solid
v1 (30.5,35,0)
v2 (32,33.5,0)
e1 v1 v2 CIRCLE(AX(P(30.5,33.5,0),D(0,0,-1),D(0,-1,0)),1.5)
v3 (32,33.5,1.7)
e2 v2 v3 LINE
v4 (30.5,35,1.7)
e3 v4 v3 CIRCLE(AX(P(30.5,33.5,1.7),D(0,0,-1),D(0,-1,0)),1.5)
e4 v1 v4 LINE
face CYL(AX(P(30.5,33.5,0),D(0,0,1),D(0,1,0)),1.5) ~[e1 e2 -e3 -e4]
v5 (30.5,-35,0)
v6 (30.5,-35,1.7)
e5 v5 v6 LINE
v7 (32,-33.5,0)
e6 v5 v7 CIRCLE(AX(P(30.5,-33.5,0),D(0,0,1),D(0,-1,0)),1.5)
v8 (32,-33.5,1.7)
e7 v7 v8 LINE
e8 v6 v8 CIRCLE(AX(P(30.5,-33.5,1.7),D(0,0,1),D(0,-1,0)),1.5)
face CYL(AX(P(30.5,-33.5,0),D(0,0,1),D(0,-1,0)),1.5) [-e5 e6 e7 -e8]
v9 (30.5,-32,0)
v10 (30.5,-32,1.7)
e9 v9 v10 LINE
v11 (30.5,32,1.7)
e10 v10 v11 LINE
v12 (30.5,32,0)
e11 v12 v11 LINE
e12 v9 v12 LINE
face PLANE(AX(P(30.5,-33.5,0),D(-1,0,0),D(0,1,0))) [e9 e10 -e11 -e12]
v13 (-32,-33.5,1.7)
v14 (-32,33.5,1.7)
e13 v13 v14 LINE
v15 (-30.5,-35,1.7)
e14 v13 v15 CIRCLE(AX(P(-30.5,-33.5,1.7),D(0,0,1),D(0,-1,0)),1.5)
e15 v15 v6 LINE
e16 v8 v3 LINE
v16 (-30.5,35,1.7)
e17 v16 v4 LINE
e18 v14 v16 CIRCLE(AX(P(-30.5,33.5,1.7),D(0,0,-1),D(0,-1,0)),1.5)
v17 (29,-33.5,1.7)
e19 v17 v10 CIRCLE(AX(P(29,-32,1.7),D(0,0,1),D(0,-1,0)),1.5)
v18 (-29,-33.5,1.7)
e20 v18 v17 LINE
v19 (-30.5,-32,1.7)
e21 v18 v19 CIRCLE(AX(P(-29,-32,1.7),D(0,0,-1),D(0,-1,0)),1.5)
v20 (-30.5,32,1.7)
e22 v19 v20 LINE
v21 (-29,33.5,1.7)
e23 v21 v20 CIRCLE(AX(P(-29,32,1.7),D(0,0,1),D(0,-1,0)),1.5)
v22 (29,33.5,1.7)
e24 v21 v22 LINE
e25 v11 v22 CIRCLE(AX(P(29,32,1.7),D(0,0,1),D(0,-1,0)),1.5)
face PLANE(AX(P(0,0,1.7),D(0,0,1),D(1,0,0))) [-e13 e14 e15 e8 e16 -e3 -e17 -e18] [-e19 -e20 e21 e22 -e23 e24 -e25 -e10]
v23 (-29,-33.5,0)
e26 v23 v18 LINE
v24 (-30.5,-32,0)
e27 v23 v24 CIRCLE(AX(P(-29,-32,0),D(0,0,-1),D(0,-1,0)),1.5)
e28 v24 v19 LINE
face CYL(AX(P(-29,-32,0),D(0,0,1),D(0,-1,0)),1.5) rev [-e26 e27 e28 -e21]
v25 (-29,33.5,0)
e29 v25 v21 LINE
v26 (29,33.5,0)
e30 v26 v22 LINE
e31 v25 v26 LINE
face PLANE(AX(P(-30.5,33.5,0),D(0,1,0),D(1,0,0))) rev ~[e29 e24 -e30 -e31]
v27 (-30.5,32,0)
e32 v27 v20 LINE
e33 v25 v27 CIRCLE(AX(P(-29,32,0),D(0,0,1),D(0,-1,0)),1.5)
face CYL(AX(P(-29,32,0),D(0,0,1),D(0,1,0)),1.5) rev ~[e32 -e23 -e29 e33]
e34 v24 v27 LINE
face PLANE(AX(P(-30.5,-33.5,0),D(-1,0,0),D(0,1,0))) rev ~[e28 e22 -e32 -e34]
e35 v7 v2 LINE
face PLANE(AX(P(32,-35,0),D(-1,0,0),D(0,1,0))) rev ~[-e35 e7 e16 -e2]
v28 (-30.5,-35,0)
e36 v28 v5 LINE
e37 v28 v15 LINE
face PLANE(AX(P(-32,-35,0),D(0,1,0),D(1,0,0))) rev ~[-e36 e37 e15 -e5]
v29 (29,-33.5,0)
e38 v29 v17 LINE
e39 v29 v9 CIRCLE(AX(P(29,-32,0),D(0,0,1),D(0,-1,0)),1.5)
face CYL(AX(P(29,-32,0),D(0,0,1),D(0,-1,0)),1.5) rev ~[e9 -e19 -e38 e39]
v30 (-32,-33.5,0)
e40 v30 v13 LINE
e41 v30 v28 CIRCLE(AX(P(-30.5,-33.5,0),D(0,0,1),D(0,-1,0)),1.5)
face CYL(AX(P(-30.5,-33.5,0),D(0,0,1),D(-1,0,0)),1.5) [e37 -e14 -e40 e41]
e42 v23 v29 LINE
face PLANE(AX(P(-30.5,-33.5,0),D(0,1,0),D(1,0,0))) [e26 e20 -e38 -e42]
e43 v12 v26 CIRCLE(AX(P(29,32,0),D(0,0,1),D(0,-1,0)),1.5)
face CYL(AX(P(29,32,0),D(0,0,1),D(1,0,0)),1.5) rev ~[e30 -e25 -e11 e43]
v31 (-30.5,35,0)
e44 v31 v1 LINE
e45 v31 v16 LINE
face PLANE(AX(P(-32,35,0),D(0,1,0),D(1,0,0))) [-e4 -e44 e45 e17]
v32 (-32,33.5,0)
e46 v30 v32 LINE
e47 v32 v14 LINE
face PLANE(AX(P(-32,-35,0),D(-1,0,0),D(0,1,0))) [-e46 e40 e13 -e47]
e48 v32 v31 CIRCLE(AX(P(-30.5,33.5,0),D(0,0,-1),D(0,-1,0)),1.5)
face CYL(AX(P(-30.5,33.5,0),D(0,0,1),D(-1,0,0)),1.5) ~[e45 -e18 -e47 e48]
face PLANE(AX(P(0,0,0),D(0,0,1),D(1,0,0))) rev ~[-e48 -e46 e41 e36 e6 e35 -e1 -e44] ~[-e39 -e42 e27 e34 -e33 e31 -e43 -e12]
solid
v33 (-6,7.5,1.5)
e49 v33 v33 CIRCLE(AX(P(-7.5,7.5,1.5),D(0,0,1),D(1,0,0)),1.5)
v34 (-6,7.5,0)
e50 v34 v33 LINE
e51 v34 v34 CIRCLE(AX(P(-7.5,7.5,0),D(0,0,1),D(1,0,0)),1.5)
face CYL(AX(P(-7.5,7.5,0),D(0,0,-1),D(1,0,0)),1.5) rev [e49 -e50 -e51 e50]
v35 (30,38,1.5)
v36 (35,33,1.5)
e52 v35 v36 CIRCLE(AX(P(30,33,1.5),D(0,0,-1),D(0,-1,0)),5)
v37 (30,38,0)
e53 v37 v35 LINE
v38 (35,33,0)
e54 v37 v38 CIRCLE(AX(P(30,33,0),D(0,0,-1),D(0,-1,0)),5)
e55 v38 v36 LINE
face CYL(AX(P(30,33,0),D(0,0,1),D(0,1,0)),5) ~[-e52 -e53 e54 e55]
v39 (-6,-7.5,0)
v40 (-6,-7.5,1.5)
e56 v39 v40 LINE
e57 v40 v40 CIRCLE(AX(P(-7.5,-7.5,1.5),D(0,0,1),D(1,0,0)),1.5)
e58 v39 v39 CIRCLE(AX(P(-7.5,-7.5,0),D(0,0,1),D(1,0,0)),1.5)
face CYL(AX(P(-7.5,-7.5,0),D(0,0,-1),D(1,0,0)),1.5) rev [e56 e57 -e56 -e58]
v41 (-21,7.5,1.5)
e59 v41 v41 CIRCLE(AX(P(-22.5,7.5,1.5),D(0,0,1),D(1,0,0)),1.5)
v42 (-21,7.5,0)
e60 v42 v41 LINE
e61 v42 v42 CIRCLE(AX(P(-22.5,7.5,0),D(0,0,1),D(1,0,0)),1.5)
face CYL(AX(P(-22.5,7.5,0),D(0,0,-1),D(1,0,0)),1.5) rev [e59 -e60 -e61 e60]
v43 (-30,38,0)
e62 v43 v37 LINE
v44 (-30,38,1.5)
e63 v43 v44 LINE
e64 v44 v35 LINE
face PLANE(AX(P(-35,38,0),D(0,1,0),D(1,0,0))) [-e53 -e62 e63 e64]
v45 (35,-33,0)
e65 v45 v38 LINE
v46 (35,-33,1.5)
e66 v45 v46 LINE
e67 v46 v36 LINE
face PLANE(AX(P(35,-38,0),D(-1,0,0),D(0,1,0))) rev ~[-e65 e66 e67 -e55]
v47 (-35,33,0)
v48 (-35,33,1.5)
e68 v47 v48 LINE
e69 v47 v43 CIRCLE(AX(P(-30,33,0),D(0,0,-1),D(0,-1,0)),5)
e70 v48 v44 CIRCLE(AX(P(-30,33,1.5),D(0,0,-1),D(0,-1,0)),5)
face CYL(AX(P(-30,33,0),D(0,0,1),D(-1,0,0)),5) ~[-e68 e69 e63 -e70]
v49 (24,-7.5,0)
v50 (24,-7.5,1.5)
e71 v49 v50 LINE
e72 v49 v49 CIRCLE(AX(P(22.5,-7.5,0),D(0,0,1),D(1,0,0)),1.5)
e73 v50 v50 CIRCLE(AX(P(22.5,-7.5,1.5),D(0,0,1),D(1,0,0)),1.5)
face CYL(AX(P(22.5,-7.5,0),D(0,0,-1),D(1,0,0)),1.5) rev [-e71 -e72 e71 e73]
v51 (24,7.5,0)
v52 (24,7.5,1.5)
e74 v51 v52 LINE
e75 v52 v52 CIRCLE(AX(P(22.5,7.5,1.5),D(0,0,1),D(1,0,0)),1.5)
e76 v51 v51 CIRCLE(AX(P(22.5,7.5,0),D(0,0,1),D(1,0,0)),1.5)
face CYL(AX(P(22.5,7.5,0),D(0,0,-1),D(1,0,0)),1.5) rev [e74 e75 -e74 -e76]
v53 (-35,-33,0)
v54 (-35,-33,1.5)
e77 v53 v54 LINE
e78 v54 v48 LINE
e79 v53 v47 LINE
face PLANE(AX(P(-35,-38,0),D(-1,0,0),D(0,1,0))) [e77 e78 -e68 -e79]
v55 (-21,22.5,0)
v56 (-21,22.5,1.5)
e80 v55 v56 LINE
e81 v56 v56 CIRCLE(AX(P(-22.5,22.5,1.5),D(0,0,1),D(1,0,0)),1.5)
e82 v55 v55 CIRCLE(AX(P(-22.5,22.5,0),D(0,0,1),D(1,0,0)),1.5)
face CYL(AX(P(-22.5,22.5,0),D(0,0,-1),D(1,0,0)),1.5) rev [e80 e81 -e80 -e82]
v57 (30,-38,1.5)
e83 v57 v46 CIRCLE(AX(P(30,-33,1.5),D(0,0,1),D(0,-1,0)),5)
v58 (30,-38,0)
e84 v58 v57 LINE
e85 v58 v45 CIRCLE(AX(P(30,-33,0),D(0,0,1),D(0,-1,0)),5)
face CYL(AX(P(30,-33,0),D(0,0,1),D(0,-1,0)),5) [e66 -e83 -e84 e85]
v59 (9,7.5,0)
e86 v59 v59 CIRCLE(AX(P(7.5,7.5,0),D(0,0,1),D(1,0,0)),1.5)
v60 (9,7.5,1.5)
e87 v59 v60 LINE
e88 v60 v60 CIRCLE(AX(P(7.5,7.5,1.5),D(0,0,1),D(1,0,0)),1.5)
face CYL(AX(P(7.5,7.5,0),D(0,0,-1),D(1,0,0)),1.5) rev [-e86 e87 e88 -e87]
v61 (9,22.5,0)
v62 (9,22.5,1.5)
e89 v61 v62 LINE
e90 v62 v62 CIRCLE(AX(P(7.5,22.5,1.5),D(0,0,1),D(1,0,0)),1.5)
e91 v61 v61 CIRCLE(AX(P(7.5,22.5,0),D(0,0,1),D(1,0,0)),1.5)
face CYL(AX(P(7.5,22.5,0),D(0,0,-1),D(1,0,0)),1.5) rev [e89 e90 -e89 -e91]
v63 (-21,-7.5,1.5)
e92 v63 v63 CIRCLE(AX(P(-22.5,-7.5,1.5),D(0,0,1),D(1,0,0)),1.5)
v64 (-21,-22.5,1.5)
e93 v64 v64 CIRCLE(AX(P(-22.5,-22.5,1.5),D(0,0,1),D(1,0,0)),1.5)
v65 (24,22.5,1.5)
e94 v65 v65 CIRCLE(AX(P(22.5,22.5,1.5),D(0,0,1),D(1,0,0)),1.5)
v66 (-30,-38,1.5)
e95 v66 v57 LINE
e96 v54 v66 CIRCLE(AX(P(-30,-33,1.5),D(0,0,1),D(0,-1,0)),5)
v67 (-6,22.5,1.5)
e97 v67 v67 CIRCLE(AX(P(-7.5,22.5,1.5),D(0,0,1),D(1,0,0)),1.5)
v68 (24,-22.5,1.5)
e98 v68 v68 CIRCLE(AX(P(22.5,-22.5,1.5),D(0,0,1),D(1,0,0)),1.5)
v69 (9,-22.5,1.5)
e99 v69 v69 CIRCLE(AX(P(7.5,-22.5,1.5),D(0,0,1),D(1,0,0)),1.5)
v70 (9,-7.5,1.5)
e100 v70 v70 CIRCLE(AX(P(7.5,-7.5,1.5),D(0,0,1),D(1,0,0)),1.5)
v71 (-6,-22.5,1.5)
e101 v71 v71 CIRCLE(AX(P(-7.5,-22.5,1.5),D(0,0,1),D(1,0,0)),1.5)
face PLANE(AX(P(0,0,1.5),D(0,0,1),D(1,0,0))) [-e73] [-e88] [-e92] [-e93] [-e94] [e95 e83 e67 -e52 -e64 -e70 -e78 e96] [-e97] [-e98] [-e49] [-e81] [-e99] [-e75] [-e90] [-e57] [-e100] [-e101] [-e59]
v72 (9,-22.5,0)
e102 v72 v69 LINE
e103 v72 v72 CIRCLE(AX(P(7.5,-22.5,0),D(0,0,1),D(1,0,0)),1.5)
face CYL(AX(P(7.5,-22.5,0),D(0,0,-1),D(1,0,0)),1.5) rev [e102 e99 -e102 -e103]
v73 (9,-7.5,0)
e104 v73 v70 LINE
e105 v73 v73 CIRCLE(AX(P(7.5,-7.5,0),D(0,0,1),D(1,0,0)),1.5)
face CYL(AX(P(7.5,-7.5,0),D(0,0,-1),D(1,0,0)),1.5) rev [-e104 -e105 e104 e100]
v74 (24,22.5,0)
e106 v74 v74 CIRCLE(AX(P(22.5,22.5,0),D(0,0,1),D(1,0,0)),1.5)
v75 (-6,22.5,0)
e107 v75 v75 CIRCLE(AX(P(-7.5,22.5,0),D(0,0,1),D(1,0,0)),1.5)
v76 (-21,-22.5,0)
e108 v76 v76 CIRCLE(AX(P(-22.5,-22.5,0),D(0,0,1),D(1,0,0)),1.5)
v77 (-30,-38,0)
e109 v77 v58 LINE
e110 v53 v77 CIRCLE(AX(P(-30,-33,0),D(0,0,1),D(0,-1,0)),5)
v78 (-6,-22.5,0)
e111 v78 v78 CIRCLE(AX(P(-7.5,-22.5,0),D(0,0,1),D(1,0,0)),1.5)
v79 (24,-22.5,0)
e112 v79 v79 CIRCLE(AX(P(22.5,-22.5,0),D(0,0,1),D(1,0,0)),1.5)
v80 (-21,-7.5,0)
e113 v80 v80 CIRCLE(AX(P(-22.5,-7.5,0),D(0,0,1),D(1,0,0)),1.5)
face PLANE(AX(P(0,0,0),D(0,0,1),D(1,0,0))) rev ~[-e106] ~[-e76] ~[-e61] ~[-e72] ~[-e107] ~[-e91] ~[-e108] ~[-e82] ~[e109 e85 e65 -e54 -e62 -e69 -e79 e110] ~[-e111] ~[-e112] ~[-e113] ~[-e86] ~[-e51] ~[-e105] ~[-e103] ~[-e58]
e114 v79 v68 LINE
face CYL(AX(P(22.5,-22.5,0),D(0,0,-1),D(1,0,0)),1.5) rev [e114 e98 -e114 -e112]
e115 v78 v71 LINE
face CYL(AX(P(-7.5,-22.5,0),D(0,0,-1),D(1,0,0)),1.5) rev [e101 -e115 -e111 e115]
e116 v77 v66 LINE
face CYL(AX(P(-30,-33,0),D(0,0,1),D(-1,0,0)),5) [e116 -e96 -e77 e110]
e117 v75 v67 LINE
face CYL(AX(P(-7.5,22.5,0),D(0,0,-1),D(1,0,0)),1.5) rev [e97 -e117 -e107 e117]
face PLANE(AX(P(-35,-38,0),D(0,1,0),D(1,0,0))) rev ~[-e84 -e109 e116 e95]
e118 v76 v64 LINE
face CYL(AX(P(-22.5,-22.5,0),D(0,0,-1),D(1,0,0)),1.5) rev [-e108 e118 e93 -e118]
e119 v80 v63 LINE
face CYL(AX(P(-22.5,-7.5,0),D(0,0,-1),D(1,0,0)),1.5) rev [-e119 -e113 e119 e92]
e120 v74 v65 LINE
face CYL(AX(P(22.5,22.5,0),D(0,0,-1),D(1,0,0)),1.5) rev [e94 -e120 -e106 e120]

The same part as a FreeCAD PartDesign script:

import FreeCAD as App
import Part
import Sketcher

V = App.Vector
Q = App.Units.Quantity


def edges_at(feature, points):
    """Names of the edges that pass closest to the given points."""
    edges = feature.Shape.Edges
    near = lambda p: min(range(len(edges)), key=lambda i: edges[i].distToShape(Part.Vertex(*p))[0])
    return sorted({f"Edge{near(p) + 1}" for p in points})


def add_polygon(sketch, points):
    """Adds a closed chain of lines whose ends are joined by coincident constraints."""
    first, n = sketch.GeometryCount, len(points)
    for a, b in zip(points, points[1:] + points[:1]):
        sketch.addGeometry(Part.LineSegment(App.Vector(*a, 0), App.Vector(*b, 0)), False)
    for i in range(n):
        sketch.addConstraint(Sketcher.Constraint("Coincident", first + i, 2, first + (i + 1) % n, 1))

doc = App.newDocument("Part")
params = doc.addObject("Spreadsheet::Sheet", "Params")
for row, (alias, value) in enumerate([
    ("sketch1_diameter", "3 mm"),
    ("sketch1_width", "70 mm"),
    ("sketch1_height", "76 mm"),
    ("pad1_length", "1.5 mm"),
    ("fillet_radius", "5 mm"),
    ("sketch2_width", "64 mm"),
    ("sketch2_width2", "61 mm"),
    ("sketch2_height", "70 mm"),
    ("sketch2_height2", "67 mm"),
    ("pad2_length", "1.7 mm"),
    ("fillet2_radius", "1.5 mm"),
], start=1):
    params.set(f"A{row}", alias)
    params.set(f"B{row}", "=" + value)
    params.setAlias(f"B{row}", alias)

body = doc.addObject("PartDesign::Body", "Body")

sketch1 = body.newObject("Sketcher::SketchObject", "Sketch")
sketch1.AttachmentSupport = (doc.getObject("XY_Plane"), [""])
sketch1.MapMode = "FlatFace"
add_polygon(sketch1, [(-35, 38), (-35, -38), (35, -38), (35, 38)])
sketch1.addGeometry(Part.Circle(V(-22.5, -22.5, 0), V(0, 0, 1), 1.5), False)
sketch1.addGeometry(Part.Circle(V(-7.5, -22.5, 0), V(0, 0, 1), 1.5), False)
sketch1.addGeometry(Part.Circle(V(-22.5, -7.5, 0), V(0, 0, 1), 1.5), False)
sketch1.addGeometry(Part.Circle(V(-7.5, -7.5, 0), V(0, 0, 1), 1.5), False)
sketch1.addGeometry(Part.Circle(V(7.5, -22.5, 0), V(0, 0, 1), 1.5), False)
sketch1.addGeometry(Part.Circle(V(22.5, -22.5, 0), V(0, 0, 1), 1.5), False)
sketch1.addGeometry(Part.Circle(V(7.5, -7.5, 0), V(0, 0, 1), 1.5), False)
sketch1.addGeometry(Part.Circle(V(22.5, -7.5, 0), V(0, 0, 1), 1.5), False)
sketch1.addGeometry(Part.Circle(V(-22.5, 7.5, 0), V(0, 0, 1), 1.5), False)
sketch1.addGeometry(Part.Circle(V(-7.5, 7.5, 0), V(0, 0, 1), 1.5), False)
sketch1.addGeometry(Part.Circle(V(-22.5, 22.5, 0), V(0, 0, 1), 1.5), False)
sketch1.addGeometry(Part.Circle(V(-7.5, 22.5, 0), V(0, 0, 1), 1.5), False)
sketch1.addGeometry(Part.Circle(V(7.5, 7.5, 0), V(0, 0, 1), 1.5), False)
sketch1.addGeometry(Part.Circle(V(22.5, 7.5, 0), V(0, 0, 1), 1.5), False)
sketch1.addGeometry(Part.Circle(V(7.5, 22.5, 0), V(0, 0, 1), 1.5), False)
sketch1.addGeometry(Part.Circle(V(22.5, 22.5, 0), V(0, 0, 1), 1.5), False)
sketch1.addConstraint([
    Sketcher.Constraint("Vertical", 0),
    Sketcher.Constraint("Horizontal", 1),
    Sketcher.Constraint("Vertical", 2),
    Sketcher.Constraint("Horizontal", 3),
    Sketcher.Constraint("Equal", 4, 5),
    Sketcher.Constraint("Equal", 5, 6),
    Sketcher.Constraint("Equal", 6, 7),
    Sketcher.Constraint("Equal", 7, 8),
    Sketcher.Constraint("Equal", 8, 9),
    Sketcher.Constraint("Equal", 9, 10),
    Sketcher.Constraint("Equal", 10, 11),
    Sketcher.Constraint("Equal", 11, 12),
    Sketcher.Constraint("Equal", 12, 13),
    Sketcher.Constraint("Equal", 13, 14),
    Sketcher.Constraint("Equal", 14, 15),
    Sketcher.Constraint("Equal", 15, 16),
    Sketcher.Constraint("Equal", 16, 17),
    Sketcher.Constraint("Equal", 17, 18),
    Sketcher.Constraint("Equal", 18, 19),
    Sketcher.Constraint("Symmetric", 11, 3, 12, 3, -1, 1),
    Sketcher.Constraint("Symmetric", 10, 3, 13, 3, -1, 1),
    Sketcher.Constraint("Symmetric", 9, 3, 14, 3, -1, 1),
    Sketcher.Constraint("Symmetric", 8, 3, 15, 3, -1, 1),
    Sketcher.Constraint("Symmetric", 7, 3, 16, 3, -1, 1),
    Sketcher.Constraint("Symmetric", 6, 3, 17, 3, -1, 1),
    Sketcher.Constraint("Symmetric", 5, 3, 18, 3, -1, 1),
    Sketcher.Constraint("Symmetric", 4, 3, 19, 3, -1, 1),
    Sketcher.Constraint("Symmetric", 0, 2, 2, 2, -1, 1),
    Sketcher.Constraint("Symmetric", 5, 3, 8, 3, -2),
    Sketcher.Constraint("Symmetric", 4, 3, 9, 3, -2),
    Sketcher.Constraint("Symmetric", 7, 3, 10, 3, -2),
    Sketcher.Constraint("Symmetric", 6, 3, 11, 3, -2),
    Sketcher.Constraint("Horizontal", 4, 3, 5, 3),
    Sketcher.Constraint("Horizontal", 6, 3, 7, 3),
    Sketcher.Constraint("Vertical", 4, 3, 6, 3),
    Sketcher.Constraint("Vertical", 5, 3, 7, 3),
    Sketcher.Constraint("Diameter", 4, Q("3 mm")),
    Sketcher.Constraint("DistanceX", 1, 1, 1, 2, Q("70 mm")),
    Sketcher.Constraint("DistanceY", 0, 2, 0, 1, Q("76 mm")),
    Sketcher.Constraint("DistanceX", 4, 3, 5, 3, Q("15 mm")),
    Sketcher.Constraint("DistanceY", 4, 3, 6, 3, Q("15 mm")),
    Sketcher.Constraint("DistanceX", 5, 3, 8, 3, Q("15 mm")),
    Sketcher.Constraint("DistanceY", 6, 3, 12, 3, Q("15 mm")),
])
sketch1.setExpression("Constraints[40]", "Params.sketch1_diameter")
sketch1.setExpression("Constraints[41]", "Params.sketch1_width")
sketch1.setExpression("Constraints[42]", "Params.sketch1_height")
pad1 = body.newObject("PartDesign::Pad", "Pad")
pad1.Profile = sketch1
pad1.setExpression("Length", "Params.pad1_length")
doc.recompute()

fillet = body.newObject("PartDesign::Fillet", "Fillet")
fillet.Base = (pad1, edges_at(pad1, [
    (-35, 38, 0.75),
    (35, -38, 0.75),
    (-35, -38, 0.75),
    (35, 38, 0.75),
]))
fillet.setExpression("Radius", "Params.fillet_radius")
body2 = doc.addObject("PartDesign::Body", "Body001")

sketch2 = body2.newObject("Sketcher::SketchObject", "Sketch001")
sketch2.AttachmentSupport = (doc.getObject("XY_Plane001"), [""])
sketch2.MapMode = "FlatFace"
add_polygon(sketch2, [(-32, 35), (-32, -35), (32, -35), (32, 35)])
add_polygon(sketch2, [(30, -34), (-30, -34), (-30, 34), (30, 34)])
sketch2.addConstraint([
    Sketcher.Constraint("Vertical", 0),
    Sketcher.Constraint("Horizontal", 1),
    Sketcher.Constraint("Vertical", 2),
    Sketcher.Constraint("Horizontal", 3),
    Sketcher.Constraint("Horizontal", 4),
    Sketcher.Constraint("Vertical", 5),
    Sketcher.Constraint("Horizontal", 6),
    Sketcher.Constraint("Vertical", 7),
    Sketcher.Constraint("Symmetric", 0, 2, 2, 2, -1, 1),
    Sketcher.Constraint("Symmetric", 4, 2, 6, 2, -1, 1),
    Sketcher.Constraint("DistanceX", 1, 1, 1, 2, Q("64 mm")),
    Sketcher.Constraint("DistanceX", 4, 2, 4, 1, Q("61 mm")),
    Sketcher.Constraint("DistanceY", 0, 2, 0, 1, Q("70 mm")),
    Sketcher.Constraint("DistanceY", 5, 1, 5, 2, Q("67 mm")),
])
sketch2.setExpression("Constraints[18]", "Params.sketch2_width")
sketch2.setExpression("Constraints[19]", "Params.sketch2_width2")
sketch2.setExpression("Constraints[20]", "Params.sketch2_height")
sketch2.setExpression("Constraints[21]", "Params.sketch2_height2")
pad2 = body2.newObject("PartDesign::Pad", "Pad001")
pad2.Profile = sketch2
pad2.setExpression("Length", "Params.pad2_length")
doc.recompute()

fillet2 = body2.newObject("PartDesign::Fillet", "Fillet001")
fillet2.Base = (pad2, edges_at(pad2, [
    (32, -35, 0.85),
    (30.5, -33.5, 0.85),
    (32, 35, 0.85),
    (30.5, 33.5, 0.85),
    (-30.5, 33.5, 0.85),
    (-32, 35, 0.85),
    (-32, -35, 0.85),
    (-30.5, -33.5, 0.85),
]))
fillet2.setExpression("Radius", "Params.fillet2_radius")

doc.recompute()
